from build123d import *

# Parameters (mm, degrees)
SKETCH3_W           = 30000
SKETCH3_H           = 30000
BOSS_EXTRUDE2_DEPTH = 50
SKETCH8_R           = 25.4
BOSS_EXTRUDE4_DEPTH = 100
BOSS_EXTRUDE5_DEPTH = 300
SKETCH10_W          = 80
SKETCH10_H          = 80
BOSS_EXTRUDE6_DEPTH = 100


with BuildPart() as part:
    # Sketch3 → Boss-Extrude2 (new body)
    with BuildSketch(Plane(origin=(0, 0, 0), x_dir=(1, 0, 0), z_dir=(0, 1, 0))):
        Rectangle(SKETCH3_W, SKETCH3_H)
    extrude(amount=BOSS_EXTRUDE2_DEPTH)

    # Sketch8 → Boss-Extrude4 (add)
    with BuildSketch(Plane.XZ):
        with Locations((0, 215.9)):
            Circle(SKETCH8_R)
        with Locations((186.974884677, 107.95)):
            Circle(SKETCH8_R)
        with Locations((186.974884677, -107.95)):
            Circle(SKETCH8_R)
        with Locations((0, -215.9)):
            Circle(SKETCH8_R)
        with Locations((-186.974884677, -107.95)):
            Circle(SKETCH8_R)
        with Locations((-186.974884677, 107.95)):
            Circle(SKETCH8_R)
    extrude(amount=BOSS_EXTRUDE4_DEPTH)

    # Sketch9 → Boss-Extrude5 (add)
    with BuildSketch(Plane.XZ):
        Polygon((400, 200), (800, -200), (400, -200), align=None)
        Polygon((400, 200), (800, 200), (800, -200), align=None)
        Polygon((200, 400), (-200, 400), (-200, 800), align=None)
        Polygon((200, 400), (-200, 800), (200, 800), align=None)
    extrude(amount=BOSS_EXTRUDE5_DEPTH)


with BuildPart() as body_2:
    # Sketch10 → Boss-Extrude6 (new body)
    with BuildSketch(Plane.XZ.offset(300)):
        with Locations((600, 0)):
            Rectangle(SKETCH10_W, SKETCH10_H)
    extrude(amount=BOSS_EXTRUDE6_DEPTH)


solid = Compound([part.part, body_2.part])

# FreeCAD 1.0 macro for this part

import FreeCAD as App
import Part
import Sketcher

V = App.Vector

doc = App.newDocument("Part")
params = doc.addObject("Spreadsheet::Sheet", "Params")
for row, (alias, value) in enumerate([
    ("sketch1_width", "30000 mm"),
    ("pad1_length", "50 mm"),
    ("sketch2_diameter", "50.8 mm"),
    ("pad2_length", "100 mm"),
    ("sketch3_width", "400 mm"),
    ("pad3_length", "300 mm"),
    ("sketch4_width", "80 mm"),
    ("pad4_length", "100 mm"),
], start=1):
    params.set(f"A{row}", alias)
    params.set(f"B{row}", "=" + value)
    params.setAlias(f"B{row}", alias)

body = doc.addObject("PartDesign::Body", "Body")

# Sketch on XZ plane
sketch1 = doc.addObject("Sketcher::SketchObject", "Sketch")
body.addObject(sketch1)
sketch1.AttachmentSupport = (doc.XZ_Plane, [""])
sketch1.MapMode = "FlatFace"
sketch1.addGeometry([
    Part.LineSegment(V(-15000, -15000, 0), V(-15000, 15000, 0)),
    Part.LineSegment(V(-15000, 15000, 0), V(15000, 15000, 0)),
    Part.LineSegment(V(15000, 15000, 0), V(15000, -15000, 0)),
    Part.LineSegment(V(15000, -15000, 0), V(-15000, -15000, 0)),
], False)
sketch1.addConstraint([
    Sketcher.Constraint("Coincident", 0, 2, 1, 1),
    Sketcher.Constraint("Coincident", 1, 2, 2, 1),
    Sketcher.Constraint("Coincident", 2, 2, 3, 1),
    Sketcher.Constraint("Coincident", 3, 2, 0, 1),
    Sketcher.Constraint("Vertical", 0),
    Sketcher.Constraint("Horizontal", 1),
    Sketcher.Constraint("Vertical", 2),
    Sketcher.Constraint("Horizontal", 3),
    Sketcher.Constraint("Symmetric", 0, 2, 2, 2, -1, 1),
    Sketcher.Constraint("Equal", 3, 0),
    Sketcher.Constraint("DistanceX", 1, 1, 1, 2, 30000.0),
])
sketch1.setExpression("Constraints[10]", "Params.sketch1_width")
pad1 = doc.addObject("PartDesign::Pad", "Pad")
body.addObject(pad1)
pad1.Profile = sketch1
pad1.setExpression("Length", "Params.pad1_length")
pad1.Reversed = True

# Sketch on XZ plane
sketch2 = doc.addObject("Sketcher::SketchObject", "Sketch001")
body.addObject(sketch2)
sketch2.AttachmentSupport = (doc.XZ_Plane, [""])
sketch2.MapMode = "FlatFace"
sketch2.addGeometry([
    Part.Circle(V(0, 216, 0), V(0, 0, 1), 25),  # 0
    Part.Circle(V(187, 108, 0), V(0, 0, 1), 25),  # 1
    Part.Circle(V(187, -108, 0), V(0, 0, 1), 25),  # 2
    Part.Circle(V(0, -216, 0), V(0, 0, 1), 25),  # 3
    Part.Circle(V(-187, -108, 0), V(0, 0, 1), 25),  # 4
    Part.Circle(V(-187, 108, 0), V(0, 0, 1), 25),  # 5
], False)
sketch2.addConstraint([
    Sketcher.Constraint("Equal", 0, 1),
    Sketcher.Constraint("Equal", 1, 2),
    Sketcher.Constraint("Equal", 2, 3),
    Sketcher.Constraint("Equal", 3, 4),
    Sketcher.Constraint("Equal", 4, 5),
    Sketcher.Constraint("Symmetric", 0, 3, 3, 3, -1, 1),
    Sketcher.Constraint("Symmetric", 1, 3, 4, 3, -1, 1),
    Sketcher.Constraint("Symmetric", 2, 3, 5, 3, -1, 1),
    Sketcher.Constraint("Symmetric", 2, 3, 4, 3, -2),
    Sketcher.Constraint("PointOnObject", 0, 3, -2),
    Sketcher.Constraint("Diameter", 0, 50.8),
    Sketcher.Constraint("DistanceY", -1, 1, 0, 3, 215.9),
    Sketcher.Constraint("DistanceY", 2, 3, 1, 3, 215.9),
    Sketcher.Constraint("DistanceX", 4, 3, 2, 3, 373.949769),
])
sketch2.setExpression("Constraints[10]", "Params.sketch2_diameter")
pad2 = doc.addObject("PartDesign::Pad", "Pad001")
body.addObject(pad2)
pad2.Profile = sketch2
pad2.setExpression("Length", "Params.pad2_length")

# Sketch on XZ plane
sketch3 = doc.addObject("Sketcher::SketchObject", "Sketch002")
body.addObject(sketch3)
sketch3.AttachmentSupport = (doc.XZ_Plane, [""])
sketch3.MapMode = "FlatFace"
sketch3.addGeometry([
    Part.LineSegment(V(400, -200, 0), V(800, -200, 0)),  # 0
    Part.LineSegment(V(800, -200, 0), V(800, 200, 0)),  # 1
    Part.LineSegment(V(800, 200, 0), V(400, 200, 0)),  # 2
    Part.LineSegment(V(400, 200, 0), V(400, -200, 0)),  # 3
    Part.LineSegment(V(-200, 400, 0), V(200, 400, 0)),  # 4
    Part.LineSegment(V(200, 400, 0), V(200, 800, 0)),  # 5
    Part.LineSegment(V(200, 800, 0), V(-200, 800, 0)),  # 6
    Part.LineSegment(V(-200, 800, 0), V(-200, 400, 0)),  # 7
], False)
sketch3.addConstraint([
    Sketcher.Constraint("Coincident", 0, 2, 1, 1),
    Sketcher.Constraint("Coincident", 1, 2, 2, 1),
    Sketcher.Constraint("Coincident", 2, 2, 3, 1),
    Sketcher.Constraint("Coincident", 3, 2, 0, 1),
    Sketcher.Constraint("Coincident", 4, 2, 5, 1),
    Sketcher.Constraint("Coincident", 5, 2, 6, 1),
    Sketcher.Constraint("Coincident", 6, 2, 7, 1),
    Sketcher.Constraint("Coincident", 7, 2, 4, 1),
    Sketcher.Constraint("Horizontal", 0),
    Sketcher.Constraint("Vertical", 1),
    Sketcher.Constraint("Horizontal", 2),
    Sketcher.Constraint("Vertical", 3),
    Sketcher.Constraint("Horizontal", 4),
    Sketcher.Constraint("Vertical", 5),
    Sketcher.Constraint("Horizontal", 6),
    Sketcher.Constraint("Vertical", 7),
    Sketcher.Constraint("Equal", 2, 4),
    Sketcher.Constraint("Equal", 6, 1),
    Sketcher.Constraint("Equal", 3, 5),
    Sketcher.Constraint("DistanceX", 0, 1, 0, 2, 400.0),
    Sketcher.Constraint("DistanceX", -1, 1, 0, 2, 800.0),
    Sketcher.Constraint("DistanceY", 0, 2, -1, 1, 200.0),
    Sketcher.Constraint("DistanceX", -1, 1, 4, 2, 200.0),
    Sketcher.Constraint("DistanceY", -1, 1, 4, 2, 400.0),
])
sketch3.setExpression("Constraints[19]", "Params.sketch3_width")
pad3 = doc.addObject("PartDesign::Pad", "Pad002")
body.addObject(pad3)
pad3.Profile = sketch3
pad3.setExpression("Length", "Params.pad3_length")
body2 = doc.addObject("PartDesign::Body", "Body001")

# Sketch on XZ plane
sketch4 = doc.addObject("Sketcher::SketchObject", "Sketch003")
body2.addObject(sketch4)
sketch4.AttachmentSupport = (doc.getObject("XZ_Plane001"), [""])
sketch4.MapMode = "FlatFace"
sketch4.AttachmentOffset = App.Placement(V(0, 0, 300), App.Rotation())
sketch4.addGeometry([
    Part.LineSegment(V(560, 40, 0), V(560, -40, 0)),
    Part.LineSegment(V(560, -40, 0), V(640, -40, 0)),
    Part.LineSegment(V(640, -40, 0), V(640, 40, 0)),
    Part.LineSegment(V(640, 40, 0), V(560, 40, 0)),
], False)
sketch4.addConstraint([
    Sketcher.Constraint("Coincident", 0, 2, 1, 1),
    Sketcher.Constraint("Coincident", 1, 2, 2, 1),
    Sketcher.Constraint("Coincident", 2, 2, 3, 1),
    Sketcher.Constraint("Coincident", 3, 2, 0, 1),
    Sketcher.Constraint("Vertical", 0),
    Sketcher.Constraint("Horizontal", 1),
    Sketcher.Constraint("Vertical", 2),
    Sketcher.Constraint("Horizontal", 3),
    Sketcher.Constraint("Equal", 3, 0),
    Sketcher.Constraint("DistanceX", 1, 1, 1, 2, 80.0),
    Sketcher.Constraint("DistanceX", -1, 1, 0, 2, 560.0),
    Sketcher.Constraint("DistanceY", 0, 2, -1, 1, 40.0),
])
sketch4.setExpression("Constraints[9]", "Params.sketch4_width")
pad4 = doc.addObject("PartDesign::Pad", "Pad003")
body2.addObject(pad4)
pad4.Profile = sketch4
pad4.setExpression("Length", "Params.pad4_length")

doc.recompute()
